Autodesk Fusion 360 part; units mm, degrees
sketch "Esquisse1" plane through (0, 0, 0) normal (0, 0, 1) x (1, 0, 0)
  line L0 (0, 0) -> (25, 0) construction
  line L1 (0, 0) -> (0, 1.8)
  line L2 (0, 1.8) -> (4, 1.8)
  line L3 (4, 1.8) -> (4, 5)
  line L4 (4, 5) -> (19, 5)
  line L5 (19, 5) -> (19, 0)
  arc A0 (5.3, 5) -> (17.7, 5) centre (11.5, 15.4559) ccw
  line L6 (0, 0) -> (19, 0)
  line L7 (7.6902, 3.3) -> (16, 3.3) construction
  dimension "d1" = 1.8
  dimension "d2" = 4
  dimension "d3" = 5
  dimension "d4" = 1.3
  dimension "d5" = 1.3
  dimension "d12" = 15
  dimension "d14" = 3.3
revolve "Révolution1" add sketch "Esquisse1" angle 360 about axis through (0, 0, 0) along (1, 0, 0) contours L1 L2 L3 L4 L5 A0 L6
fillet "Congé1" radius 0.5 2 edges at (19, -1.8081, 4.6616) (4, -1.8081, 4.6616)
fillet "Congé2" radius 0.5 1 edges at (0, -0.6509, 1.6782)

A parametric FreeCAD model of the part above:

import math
import FreeCAD as App
import Part
import Sketcher
from FreeCAD import Vector
Q = App.Units.Quantity


def edges_at(feature, points):
    """Names of the edges that pass closest to the given points."""
    edges = feature.Shape.Edges
    near = lambda p: min(range(len(edges)), key=lambda i: edges[i].distToShape(Part.Vertex(*p))[0])
    return sorted({f"Edge{near(p) + 1}" for p in points})

doc = App.newDocument("Part")
body = doc.addObject("PartDesign::Body", "Body")

sketch1 = body.newObject("Sketcher::SketchObject", "Sketch")
sketch1.AttachmentSupport = (doc.getObject("XY_Plane"), [""])
sketch1.MapMode = "FlatFace"
sketch1.addGeometry([
    Part.LineSegment(Vector(0, 1.8, 0), Vector(0, 0, 0)),
    Part.LineSegment(Vector(0, 0, 0), Vector(19, 0, 0)),
    Part.LineSegment(Vector(19, 0, 0), Vector(19, 5, 0)),
    Part.LineSegment(Vector(19, 5, 0), Vector(17.7, 5, 0)),
    Part.ArcOfCircle(Part.Circle(Vector(11.5, 15.4559, 0), Vector(0, 0, 1), 12.155898), math.radians(-120.666527), math.radians(-59.333473)),
    Part.LineSegment(Vector(5.3, 5, 0), Vector(4, 5, 0)),
    Part.LineSegment(Vector(4, 5, 0), Vector(4, 1.8, 0)),
    Part.LineSegment(Vector(4, 1.8, 0), Vector(0, 1.8, 0)),
], False)
sketch1.addConstraint([
    Sketcher.Constraint("Coincident", 0, 2, 1, 1),
    Sketcher.Constraint("Coincident", 1, 2, 2, 1),
    Sketcher.Constraint("Coincident", 2, 2, 3, 1),
    Sketcher.Constraint("Coincident", 3, 2, 4, 2),
    Sketcher.Constraint("Coincident", 4, 1, 5, 1),
    Sketcher.Constraint("Coincident", 5, 2, 6, 1),
    Sketcher.Constraint("Coincident", 6, 2, 7, 1),
    Sketcher.Constraint("Coincident", 7, 2, 0, 1),
    Sketcher.Constraint("Vertical", 0),
    Sketcher.Constraint("Horizontal", 1),
    Sketcher.Constraint("Vertical", 2),
    Sketcher.Constraint("Horizontal", 3),
    Sketcher.Constraint("Horizontal", 5),
    Sketcher.Constraint("Vertical", 6),
    Sketcher.Constraint("Horizontal", 7),
    Sketcher.Constraint("Coincident", 0, 2, -1, 1),
    Sketcher.Constraint("Horizontal", 3, 2, 4, 1),
    Sketcher.Constraint("Equal", 3, 5),
    Sketcher.Constraint("DistanceX", 7, 2, 7, 1, Q("4 mm")),
    Sketcher.Constraint("DistanceY", 2, 1, 2, 2, Q("5 mm")),
    Sketcher.Constraint("DistanceX", 3, 2, 3, 1, Q("1.3 mm")),
    Sketcher.Constraint("DistanceY", 0, 2, 0, 1, Q("1.8 mm")),
    Sketcher.Constraint("DistanceX", 5, 2, 2, 2, Q("15 mm")),
    Sketcher.Constraint("Radius", 4, Q("12.156 mm")),
])
revolution = body.newObject("PartDesign::Revolution", "Revolution")
revolution.Profile = sketch1
revolution.ReferenceAxis = (sketch1, ["H_Axis"])
revolution.Angle = 360
doc.recompute()

fillet = body.newObject("PartDesign::Fillet", "Fillet")
fillet.Base = (revolution, edges_at(revolution, [(19, -1.808, 4.662), (4, -1.808, 4.662)]))
fillet.Radius = 0.5
doc.recompute()

fillet2 = body.newObject("PartDesign::Fillet", "Fillet001")
fillet2.Base = (fillet, edges_at(fillet, [(0, -0.651, 1.678)]))
fillet2.Radius = 0.5

doc.recompute()
